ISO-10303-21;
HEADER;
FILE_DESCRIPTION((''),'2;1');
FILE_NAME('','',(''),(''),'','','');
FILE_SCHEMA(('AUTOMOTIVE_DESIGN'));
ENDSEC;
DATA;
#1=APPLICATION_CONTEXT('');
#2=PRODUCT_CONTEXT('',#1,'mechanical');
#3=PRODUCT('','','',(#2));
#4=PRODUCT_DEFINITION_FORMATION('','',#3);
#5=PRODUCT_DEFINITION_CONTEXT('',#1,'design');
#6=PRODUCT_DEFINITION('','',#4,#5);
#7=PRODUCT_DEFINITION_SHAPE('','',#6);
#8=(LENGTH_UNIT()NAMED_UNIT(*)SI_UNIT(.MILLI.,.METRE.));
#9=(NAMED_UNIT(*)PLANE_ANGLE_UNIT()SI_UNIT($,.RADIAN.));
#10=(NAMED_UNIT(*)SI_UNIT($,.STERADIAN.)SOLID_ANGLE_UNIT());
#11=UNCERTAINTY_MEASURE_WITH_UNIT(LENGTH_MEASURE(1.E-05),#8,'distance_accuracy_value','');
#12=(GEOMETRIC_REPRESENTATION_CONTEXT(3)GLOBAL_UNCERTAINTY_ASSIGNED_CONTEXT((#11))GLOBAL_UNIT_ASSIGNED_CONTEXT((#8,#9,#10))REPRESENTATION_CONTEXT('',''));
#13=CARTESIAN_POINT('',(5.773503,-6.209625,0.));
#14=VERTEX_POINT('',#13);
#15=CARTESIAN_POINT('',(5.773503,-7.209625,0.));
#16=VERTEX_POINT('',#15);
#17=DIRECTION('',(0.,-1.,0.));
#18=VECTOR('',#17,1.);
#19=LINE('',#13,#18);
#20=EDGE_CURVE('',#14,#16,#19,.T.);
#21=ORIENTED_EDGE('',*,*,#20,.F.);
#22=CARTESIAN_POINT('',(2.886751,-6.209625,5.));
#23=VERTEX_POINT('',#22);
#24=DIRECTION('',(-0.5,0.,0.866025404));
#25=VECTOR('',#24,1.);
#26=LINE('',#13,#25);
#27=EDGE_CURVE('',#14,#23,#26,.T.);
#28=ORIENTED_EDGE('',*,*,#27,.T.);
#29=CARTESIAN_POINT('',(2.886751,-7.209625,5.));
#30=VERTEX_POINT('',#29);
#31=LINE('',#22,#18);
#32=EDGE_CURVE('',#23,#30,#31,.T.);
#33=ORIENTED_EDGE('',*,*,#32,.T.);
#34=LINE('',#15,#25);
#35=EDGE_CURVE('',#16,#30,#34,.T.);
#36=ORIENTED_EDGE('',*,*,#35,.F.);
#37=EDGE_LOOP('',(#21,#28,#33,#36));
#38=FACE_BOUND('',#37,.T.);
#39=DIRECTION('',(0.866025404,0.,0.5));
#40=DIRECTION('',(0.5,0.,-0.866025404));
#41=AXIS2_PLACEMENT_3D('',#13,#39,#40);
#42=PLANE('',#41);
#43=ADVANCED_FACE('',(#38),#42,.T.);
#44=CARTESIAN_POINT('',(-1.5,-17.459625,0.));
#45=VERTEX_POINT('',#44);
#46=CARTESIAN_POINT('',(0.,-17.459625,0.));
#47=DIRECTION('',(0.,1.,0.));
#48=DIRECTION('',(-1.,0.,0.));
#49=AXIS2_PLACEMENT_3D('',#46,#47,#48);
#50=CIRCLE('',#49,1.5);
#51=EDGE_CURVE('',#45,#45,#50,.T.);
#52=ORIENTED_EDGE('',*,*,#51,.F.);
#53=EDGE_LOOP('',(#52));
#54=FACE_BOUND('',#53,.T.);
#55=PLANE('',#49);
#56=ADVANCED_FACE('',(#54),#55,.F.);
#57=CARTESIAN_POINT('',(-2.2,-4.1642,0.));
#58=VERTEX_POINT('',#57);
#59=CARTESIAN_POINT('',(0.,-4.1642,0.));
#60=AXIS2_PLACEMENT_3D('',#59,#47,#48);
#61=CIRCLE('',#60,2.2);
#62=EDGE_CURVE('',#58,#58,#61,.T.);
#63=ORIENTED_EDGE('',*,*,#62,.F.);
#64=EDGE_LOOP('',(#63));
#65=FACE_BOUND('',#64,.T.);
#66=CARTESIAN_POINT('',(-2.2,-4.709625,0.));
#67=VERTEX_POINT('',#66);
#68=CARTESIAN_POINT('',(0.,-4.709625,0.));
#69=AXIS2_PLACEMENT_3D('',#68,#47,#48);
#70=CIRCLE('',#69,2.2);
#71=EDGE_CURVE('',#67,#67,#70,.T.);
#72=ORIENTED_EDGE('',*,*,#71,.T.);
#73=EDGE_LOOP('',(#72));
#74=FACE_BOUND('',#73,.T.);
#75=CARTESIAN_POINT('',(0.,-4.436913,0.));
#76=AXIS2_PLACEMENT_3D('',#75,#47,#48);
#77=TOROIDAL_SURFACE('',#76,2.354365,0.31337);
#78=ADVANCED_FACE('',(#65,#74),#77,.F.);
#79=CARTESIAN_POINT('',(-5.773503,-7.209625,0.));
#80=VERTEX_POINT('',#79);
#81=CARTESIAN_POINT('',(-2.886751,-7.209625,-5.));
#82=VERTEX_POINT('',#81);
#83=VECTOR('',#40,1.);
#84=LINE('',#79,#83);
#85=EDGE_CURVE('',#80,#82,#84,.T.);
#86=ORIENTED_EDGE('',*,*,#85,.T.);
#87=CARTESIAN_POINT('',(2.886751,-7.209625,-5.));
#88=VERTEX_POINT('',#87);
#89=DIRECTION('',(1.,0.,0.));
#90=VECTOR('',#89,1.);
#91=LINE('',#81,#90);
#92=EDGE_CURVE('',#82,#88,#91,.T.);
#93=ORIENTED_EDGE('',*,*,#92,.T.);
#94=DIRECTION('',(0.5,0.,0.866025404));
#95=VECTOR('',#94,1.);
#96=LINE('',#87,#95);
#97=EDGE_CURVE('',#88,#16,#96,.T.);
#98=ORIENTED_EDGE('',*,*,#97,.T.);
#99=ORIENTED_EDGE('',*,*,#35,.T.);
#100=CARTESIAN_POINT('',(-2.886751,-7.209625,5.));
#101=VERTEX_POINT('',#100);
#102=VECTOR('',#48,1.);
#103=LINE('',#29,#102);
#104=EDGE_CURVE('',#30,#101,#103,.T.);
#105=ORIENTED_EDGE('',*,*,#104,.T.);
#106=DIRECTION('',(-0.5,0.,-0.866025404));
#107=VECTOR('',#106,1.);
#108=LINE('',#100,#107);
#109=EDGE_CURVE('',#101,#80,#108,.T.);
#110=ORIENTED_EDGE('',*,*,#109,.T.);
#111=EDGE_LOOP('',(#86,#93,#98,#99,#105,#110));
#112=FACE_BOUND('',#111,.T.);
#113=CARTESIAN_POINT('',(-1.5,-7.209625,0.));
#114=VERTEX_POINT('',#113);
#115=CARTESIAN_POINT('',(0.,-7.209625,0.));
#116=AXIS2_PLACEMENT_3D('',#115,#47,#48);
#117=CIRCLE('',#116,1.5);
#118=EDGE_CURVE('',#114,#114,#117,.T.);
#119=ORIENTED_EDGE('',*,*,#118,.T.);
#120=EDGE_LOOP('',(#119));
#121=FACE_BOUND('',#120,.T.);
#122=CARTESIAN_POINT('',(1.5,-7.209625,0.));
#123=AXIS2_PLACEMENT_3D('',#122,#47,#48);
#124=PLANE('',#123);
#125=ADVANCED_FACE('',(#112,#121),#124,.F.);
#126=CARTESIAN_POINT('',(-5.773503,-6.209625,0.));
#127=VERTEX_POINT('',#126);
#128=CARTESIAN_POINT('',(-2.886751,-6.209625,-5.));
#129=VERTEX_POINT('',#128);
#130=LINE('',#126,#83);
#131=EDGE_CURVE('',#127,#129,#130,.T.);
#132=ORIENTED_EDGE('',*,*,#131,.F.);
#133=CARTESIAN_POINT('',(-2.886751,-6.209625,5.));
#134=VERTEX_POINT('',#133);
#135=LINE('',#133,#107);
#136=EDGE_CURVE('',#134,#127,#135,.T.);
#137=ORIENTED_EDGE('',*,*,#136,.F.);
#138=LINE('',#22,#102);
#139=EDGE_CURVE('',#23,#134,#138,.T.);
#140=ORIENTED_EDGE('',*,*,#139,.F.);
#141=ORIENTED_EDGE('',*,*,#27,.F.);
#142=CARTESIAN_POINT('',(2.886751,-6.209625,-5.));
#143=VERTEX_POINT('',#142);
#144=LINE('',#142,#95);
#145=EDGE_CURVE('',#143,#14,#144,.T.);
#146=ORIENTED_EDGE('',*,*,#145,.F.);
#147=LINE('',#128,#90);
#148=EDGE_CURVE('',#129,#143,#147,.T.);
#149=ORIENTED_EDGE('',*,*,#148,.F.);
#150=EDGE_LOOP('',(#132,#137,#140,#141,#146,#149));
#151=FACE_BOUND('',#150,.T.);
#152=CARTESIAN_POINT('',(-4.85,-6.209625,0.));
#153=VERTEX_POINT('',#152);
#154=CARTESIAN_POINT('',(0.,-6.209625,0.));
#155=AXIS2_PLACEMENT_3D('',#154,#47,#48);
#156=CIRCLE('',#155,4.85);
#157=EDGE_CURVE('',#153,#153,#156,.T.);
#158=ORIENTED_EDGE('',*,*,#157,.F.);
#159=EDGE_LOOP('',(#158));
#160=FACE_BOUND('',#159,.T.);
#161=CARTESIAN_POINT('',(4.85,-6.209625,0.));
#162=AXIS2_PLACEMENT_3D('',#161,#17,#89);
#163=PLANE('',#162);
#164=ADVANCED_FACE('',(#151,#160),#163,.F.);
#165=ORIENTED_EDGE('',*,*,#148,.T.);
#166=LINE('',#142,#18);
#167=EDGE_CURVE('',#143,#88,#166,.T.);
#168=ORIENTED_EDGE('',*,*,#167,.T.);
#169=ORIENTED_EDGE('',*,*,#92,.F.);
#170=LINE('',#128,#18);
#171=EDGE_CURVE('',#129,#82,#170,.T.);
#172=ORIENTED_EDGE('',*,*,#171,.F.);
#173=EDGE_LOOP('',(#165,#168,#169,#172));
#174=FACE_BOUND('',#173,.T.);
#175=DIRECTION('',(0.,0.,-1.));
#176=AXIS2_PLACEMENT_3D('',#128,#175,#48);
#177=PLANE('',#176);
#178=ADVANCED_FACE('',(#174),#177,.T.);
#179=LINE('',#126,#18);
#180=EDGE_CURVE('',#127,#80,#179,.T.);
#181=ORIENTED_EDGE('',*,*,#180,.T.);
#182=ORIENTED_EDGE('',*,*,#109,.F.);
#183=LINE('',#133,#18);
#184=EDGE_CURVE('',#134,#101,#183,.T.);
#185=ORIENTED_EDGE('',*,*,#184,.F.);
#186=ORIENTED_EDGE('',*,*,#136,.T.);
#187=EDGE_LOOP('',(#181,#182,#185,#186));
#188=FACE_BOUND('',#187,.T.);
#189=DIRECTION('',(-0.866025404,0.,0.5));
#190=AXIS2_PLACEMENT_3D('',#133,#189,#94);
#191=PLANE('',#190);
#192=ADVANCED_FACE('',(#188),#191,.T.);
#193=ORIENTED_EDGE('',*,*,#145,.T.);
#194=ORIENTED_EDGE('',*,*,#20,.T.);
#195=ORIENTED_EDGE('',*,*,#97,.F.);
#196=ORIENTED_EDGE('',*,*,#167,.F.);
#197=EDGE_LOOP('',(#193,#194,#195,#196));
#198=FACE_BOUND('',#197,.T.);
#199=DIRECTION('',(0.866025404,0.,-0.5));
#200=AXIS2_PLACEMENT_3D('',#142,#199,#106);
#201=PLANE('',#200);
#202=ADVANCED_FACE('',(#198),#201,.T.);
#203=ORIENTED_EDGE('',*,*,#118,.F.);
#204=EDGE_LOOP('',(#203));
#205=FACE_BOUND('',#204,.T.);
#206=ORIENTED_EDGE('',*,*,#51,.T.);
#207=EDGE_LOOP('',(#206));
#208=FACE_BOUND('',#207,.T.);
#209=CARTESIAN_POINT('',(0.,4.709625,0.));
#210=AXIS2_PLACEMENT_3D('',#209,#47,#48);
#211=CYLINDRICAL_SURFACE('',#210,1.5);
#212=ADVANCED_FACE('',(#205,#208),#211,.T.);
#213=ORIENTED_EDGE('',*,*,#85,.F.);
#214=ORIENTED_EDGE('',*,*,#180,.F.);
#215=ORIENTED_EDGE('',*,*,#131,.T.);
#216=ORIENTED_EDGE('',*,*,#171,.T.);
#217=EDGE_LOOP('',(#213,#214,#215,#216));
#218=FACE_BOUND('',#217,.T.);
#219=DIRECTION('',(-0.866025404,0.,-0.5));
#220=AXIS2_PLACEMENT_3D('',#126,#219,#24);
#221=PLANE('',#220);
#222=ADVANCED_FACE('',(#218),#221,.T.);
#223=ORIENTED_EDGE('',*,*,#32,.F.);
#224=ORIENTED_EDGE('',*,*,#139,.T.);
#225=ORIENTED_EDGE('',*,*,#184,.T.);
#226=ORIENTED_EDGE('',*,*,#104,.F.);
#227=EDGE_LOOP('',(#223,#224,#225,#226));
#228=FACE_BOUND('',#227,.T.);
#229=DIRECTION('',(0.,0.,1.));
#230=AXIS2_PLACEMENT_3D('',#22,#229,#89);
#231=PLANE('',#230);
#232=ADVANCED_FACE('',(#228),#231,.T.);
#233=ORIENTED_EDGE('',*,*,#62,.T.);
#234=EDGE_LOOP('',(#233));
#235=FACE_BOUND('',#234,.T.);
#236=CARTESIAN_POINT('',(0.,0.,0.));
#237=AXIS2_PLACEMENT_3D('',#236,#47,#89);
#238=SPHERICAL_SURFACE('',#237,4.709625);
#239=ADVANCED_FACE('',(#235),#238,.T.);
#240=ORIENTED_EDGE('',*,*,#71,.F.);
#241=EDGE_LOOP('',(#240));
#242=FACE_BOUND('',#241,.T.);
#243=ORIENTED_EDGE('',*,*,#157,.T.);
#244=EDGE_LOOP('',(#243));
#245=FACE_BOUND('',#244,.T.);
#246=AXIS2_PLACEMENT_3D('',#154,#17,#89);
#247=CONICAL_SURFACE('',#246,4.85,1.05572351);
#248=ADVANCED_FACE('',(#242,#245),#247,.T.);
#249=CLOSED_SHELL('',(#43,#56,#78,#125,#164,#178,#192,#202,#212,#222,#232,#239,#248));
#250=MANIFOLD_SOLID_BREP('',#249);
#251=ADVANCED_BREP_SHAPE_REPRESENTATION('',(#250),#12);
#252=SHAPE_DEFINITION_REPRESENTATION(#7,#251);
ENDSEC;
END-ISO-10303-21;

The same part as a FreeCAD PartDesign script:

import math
import FreeCAD as App
import Part
import Sketcher
from FreeCAD import Vector
Q = App.Units.Quantity

doc = App.newDocument("Part")
params = doc.addObject("Spreadsheet::Sheet", "Params")
for row, (alias, value) in enumerate([
    ("sketch1_height", "1 mm"),
    ("sketch1_width", "1.5 mm"),
    ("sketch1_width2", "3.5 mm"),
    ("sketch1_width3", "0.15 mm"),
    ("sketch1_height2", "10.25 mm"),
    ("revolution_angle", "360 deg"),
    ("pad1_length", "1 mm"),
], start=1):
    params.set(f"A{row}", alias)
    params.set(f"B{row}", "=" + value)
    params.setAlias(f"B{row}", alias)

body = doc.addObject("PartDesign::Body", "Body")

# Sketch on XY plane
sketch1 = body.newObject("Sketcher::SketchObject", "Sketch")
sketch1.AttachmentSupport = (doc.getObject("XY_Plane"), [""])
sketch1.MapMode = "FlatFace"
sketch1.addGeometry(Part.LineSegment(Vector(4.85, -6.209625, 0), Vector(2.2, -4.709625, 0)), False)
sketch1.addGeometry(Part.ArcOfCircle(Part.Circle(Vector(2.354365, -4.436913, 0), Vector(0, 0, 1), 0.31337), math.radians(119.511499), math.radians(240.488501)), False)
sketch1.addGeometry(Part.ArcOfCircle(Part.Circle(Vector(0, 0, 0), Vector(0, 0, 1), 4.709625), math.radians(-62.151937), math.radians(90)), False)
sketch1.addGeometry(Part.LineSegment(Vector(0, 4.709625, 0), Vector(0, -17.459625, 0)), False)
sketch1.addGeometry(Part.LineSegment(Vector(0, -17.459625, 0), Vector(1.5, -17.459625, 0)), False)
sketch1.addGeometry(Part.LineSegment(Vector(1.5, -17.459625, 0), Vector(1.5, -7.209625, 0)), False)
sketch1.addGeometry(Part.LineSegment(Vector(1.5, -7.209625, 0), Vector(5, -7.209625, 0)), False)
sketch1.addGeometry(Part.LineSegment(Vector(5, -7.209625, 0), Vector(5, -6.209625, 0)), False)
sketch1.addGeometry(Part.LineSegment(Vector(5, -6.209625, 0), Vector(4.85, -6.209625, 0)), False)
sketch1.addConstraint(Sketcher.Constraint("Tangent", 0, 2, 1, 2))
sketch1.addConstraint(Sketcher.Constraint("Coincident", 1, 1, 2, 1))
sketch1.addConstraint(Sketcher.Constraint("Coincident", 2, 2, 3, 1))
sketch1.addConstraint(Sketcher.Constraint("Coincident", 3, 2, 4, 1))
sketch1.addConstraint(Sketcher.Constraint("Coincident", 4, 2, 5, 1))
sketch1.addConstraint(Sketcher.Constraint("Coincident", 5, 2, 6, 1))
sketch1.addConstraint(Sketcher.Constraint("Coincident", 6, 2, 7, 1))
sketch1.addConstraint(Sketcher.Constraint("Coincident", 7, 2, 8, 1))
sketch1.addConstraint(Sketcher.Constraint("Coincident", 8, 2, 0, 1))
sketch1.addConstraint(Sketcher.Constraint("Vertical", 3))
sketch1.addConstraint(Sketcher.Constraint("Horizontal", 4))
sketch1.addConstraint(Sketcher.Constraint("Vertical", 5))
sketch1.addConstraint(Sketcher.Constraint("Horizontal", 6))
sketch1.addConstraint(Sketcher.Constraint("Vertical", 7))
sketch1.addConstraint(Sketcher.Constraint("Horizontal", 8))
sketch1.addConstraint(Sketcher.Constraint("Coincident", 2, 3, -1, 1))
sketch1.addConstraint(Sketcher.Constraint("PointOnObject", 2, 2, -2))
sketch1.addConstraint(Sketcher.Constraint("Vertical", 0, 2, 1, 1))
sketch1.addConstraint(Sketcher.Constraint("DistanceY", 7, 1, 7, 2, Q("1 mm")))
sketch1.addConstraint(Sketcher.Constraint("DistanceX", 4, 1, 4, 2, Q("1.5 mm")))
sketch1.addConstraint(Sketcher.Constraint("DistanceX", 6, 1, 6, 2, Q("3.5 mm")))
sketch1.addConstraint(Sketcher.Constraint("DistanceX", 8, 2, 8, 1, Q("0.15 mm")))
sketch1.addConstraint(Sketcher.Constraint("DistanceY", 5, 1, 5, 2, Q("10.25 mm")))
sketch1.addConstraint(Sketcher.Constraint("DistanceX", -1, 1, 0, 2, Q("2.2 mm")))
sketch1.addConstraint(Sketcher.Constraint("DistanceY", 5, 2, 0, 2, Q("2.5 mm")))
sketch1.addConstraint(Sketcher.Constraint("Radius", 1, Q("0.31337 mm")))
sketch1.addConstraint(Sketcher.Constraint("Radius", 2, Q("4.709625 mm")))
sketch1.setExpression("Constraints[18]", "Params.sketch1_height")
sketch1.setExpression("Constraints[19]", "Params.sketch1_width")
sketch1.setExpression("Constraints[20]", "Params.sketch1_width2")
sketch1.setExpression("Constraints[21]", "Params.sketch1_width3")
sketch1.setExpression("Constraints[22]", "Params.sketch1_height2")
revolution = body.newObject("PartDesign::Revolution", "Revolution")
revolution.Profile = sketch1
revolution.ReferenceAxis = (sketch1, ["V_Axis"])
revolution.setExpression("Angle", "Params.revolution_angle")

# Sketch on XZ plane
sketch2 = body.newObject("Sketcher::SketchObject", "Sketch001")
sketch2.AttachmentSupport = (doc.getObject("XZ_Plane"), [""])
sketch2.MapMode = "FlatFace"
sketch2.AttachmentOffset = App.Placement(Vector(0, 0, 7.209625), App.Rotation())
sketch2.addGeometry(Part.LineSegment(Vector(5.773503, 0, 0), Vector(2.886751, 5, 0)), False)
sketch2.addGeometry(Part.LineSegment(Vector(2.886751, 5, 0), Vector(-2.886751, 5, 0)), False)
sketch2.addGeometry(Part.LineSegment(Vector(-2.886751, 5, 0), Vector(-5.773503, 0, 0)), False)
sketch2.addGeometry(Part.LineSegment(Vector(-5.773503, 0, 0), Vector(-2.886751, -5, 0)), False)
sketch2.addGeometry(Part.LineSegment(Vector(-2.886751, -5, 0), Vector(2.886751, -5, 0)), False)
sketch2.addGeometry(Part.LineSegment(Vector(2.886751, -5, 0), Vector(5.773503, 0, 0)), False)
sketch2.addConstraint(Sketcher.Constraint("Coincident", 0, 2, 1, 1))
sketch2.addConstraint(Sketcher.Constraint("Coincident", 1, 2, 2, 1))
sketch2.addConstraint(Sketcher.Constraint("Coincident", 2, 2, 3, 1))
sketch2.addConstraint(Sketcher.Constraint("Coincident", 3, 2, 4, 1))
sketch2.addConstraint(Sketcher.Constraint("Coincident", 4, 2, 5, 1))
sketch2.addConstraint(Sketcher.Constraint("Coincident", 5, 2, 0, 1))
sketch2.addConstraint(Sketcher.Constraint("Horizontal", 1))
sketch2.addConstraint(Sketcher.Constraint("Horizontal", 4))
sketch2.addConstraint(Sketcher.Constraint("Symmetric", 0, 2, 3, 2, -1, 1))
sketch2.addConstraint(Sketcher.Constraint("Symmetric", 2, 2, 5, 2, -1, 1))
sketch2.addConstraint(Sketcher.Constraint("PointOnObject", 2, 2, -1))
sketch2.addConstraint(Sketcher.Constraint("Parallel", 2, 5))
sketch2.addConstraint(Sketcher.Constraint("Vertical", 1, 2, 3, 2))
sketch2.addConstraint(Sketcher.Constraint("Angle", 0, Q("120 deg")))
sketch2.addConstraint(Sketcher.Constraint("DistanceY", -1, 1, 0, 2, Q("5 mm")))
sketch2.addConstraint(Sketcher.Constraint("DistanceX", 1, 2, 1, 1, Q("5.773503 mm")))
pad1 = body.newObject("PartDesign::Pad", "Pad")
pad1.Profile = sketch2
pad1.setExpression("Length", "Params.pad1_length")
pad1.Reversed = True

doc.recompute()
